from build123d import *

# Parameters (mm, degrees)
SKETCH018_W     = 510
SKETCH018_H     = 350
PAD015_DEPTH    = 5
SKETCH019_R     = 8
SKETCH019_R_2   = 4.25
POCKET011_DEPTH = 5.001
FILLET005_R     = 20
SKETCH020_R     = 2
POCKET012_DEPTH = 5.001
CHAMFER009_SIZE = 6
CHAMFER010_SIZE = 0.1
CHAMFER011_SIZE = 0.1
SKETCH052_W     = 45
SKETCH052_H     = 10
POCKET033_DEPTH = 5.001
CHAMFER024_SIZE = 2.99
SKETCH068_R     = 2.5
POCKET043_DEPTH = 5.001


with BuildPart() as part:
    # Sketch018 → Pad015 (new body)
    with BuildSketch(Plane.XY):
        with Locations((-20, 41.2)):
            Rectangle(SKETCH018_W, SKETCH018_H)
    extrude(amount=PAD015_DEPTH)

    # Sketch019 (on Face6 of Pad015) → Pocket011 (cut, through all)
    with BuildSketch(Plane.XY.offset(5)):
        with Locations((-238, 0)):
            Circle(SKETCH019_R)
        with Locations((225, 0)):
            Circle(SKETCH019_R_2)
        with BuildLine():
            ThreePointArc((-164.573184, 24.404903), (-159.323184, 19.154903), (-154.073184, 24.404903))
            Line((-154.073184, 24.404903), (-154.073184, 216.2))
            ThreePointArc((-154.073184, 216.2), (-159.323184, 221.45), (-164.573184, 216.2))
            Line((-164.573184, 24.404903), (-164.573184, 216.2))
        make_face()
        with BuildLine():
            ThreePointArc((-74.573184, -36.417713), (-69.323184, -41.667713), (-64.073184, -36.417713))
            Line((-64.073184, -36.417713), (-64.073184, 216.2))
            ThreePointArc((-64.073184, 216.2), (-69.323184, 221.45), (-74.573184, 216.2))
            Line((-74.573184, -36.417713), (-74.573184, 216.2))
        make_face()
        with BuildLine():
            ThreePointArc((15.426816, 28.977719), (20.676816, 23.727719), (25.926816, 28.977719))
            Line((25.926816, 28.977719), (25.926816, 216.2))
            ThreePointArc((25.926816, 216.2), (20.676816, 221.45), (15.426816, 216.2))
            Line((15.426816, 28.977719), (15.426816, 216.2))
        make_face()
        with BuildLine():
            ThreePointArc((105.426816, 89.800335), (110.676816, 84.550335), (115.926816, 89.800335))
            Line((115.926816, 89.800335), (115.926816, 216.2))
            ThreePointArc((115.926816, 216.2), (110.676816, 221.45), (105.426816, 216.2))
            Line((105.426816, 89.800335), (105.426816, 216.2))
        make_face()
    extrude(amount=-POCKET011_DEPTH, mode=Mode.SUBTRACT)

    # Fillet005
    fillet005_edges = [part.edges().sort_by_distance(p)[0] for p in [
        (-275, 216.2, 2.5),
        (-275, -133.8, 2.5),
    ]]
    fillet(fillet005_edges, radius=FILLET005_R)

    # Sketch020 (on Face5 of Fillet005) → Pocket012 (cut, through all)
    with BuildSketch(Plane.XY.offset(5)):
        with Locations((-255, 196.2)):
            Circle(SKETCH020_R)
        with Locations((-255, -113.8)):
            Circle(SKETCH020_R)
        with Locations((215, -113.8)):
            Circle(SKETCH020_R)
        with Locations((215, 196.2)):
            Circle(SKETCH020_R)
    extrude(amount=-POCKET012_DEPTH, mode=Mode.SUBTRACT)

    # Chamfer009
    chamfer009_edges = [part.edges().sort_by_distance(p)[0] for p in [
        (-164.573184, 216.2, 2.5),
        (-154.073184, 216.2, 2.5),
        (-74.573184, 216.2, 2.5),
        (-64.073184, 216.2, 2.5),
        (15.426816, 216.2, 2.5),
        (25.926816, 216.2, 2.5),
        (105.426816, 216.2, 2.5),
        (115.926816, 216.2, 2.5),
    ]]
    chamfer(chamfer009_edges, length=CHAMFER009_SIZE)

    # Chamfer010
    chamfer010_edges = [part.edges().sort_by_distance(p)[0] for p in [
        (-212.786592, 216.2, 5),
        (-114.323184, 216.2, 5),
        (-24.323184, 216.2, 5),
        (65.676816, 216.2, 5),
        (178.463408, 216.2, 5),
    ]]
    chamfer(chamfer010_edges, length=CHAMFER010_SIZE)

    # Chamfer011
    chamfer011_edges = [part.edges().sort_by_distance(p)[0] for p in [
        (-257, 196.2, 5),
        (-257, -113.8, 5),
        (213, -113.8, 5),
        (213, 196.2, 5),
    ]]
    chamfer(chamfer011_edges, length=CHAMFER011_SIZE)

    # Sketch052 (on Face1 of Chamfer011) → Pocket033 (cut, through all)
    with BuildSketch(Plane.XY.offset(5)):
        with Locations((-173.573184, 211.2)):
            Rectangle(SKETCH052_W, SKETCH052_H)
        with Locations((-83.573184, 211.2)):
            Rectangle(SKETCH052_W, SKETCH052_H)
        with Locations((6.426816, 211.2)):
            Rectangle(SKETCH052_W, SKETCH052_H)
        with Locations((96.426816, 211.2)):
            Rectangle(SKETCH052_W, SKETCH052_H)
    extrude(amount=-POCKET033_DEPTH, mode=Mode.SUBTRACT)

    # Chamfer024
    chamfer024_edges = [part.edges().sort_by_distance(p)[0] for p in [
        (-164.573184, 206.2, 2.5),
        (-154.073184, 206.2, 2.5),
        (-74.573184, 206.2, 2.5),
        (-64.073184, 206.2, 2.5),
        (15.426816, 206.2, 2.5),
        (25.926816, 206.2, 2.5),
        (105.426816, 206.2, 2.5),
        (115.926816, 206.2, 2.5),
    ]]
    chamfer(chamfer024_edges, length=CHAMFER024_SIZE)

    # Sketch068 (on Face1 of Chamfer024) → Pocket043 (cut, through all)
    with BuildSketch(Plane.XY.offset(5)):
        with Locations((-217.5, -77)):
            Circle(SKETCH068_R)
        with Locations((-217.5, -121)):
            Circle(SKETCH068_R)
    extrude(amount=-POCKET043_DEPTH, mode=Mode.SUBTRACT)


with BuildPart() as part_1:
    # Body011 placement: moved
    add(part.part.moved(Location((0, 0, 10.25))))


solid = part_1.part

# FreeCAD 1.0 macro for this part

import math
import FreeCAD as App
import Part
import Sketcher
Q = App.Units.Quantity


def edges_at(feature, points):
    """Names of the edges that pass closest to the given points."""
    edges = feature.Shape.Edges
    near = lambda p: min(range(len(edges)), key=lambda i: edges[i].distToShape(Part.Vertex(*p))[0])
    return sorted({f"Edge{near(p) + 1}" for p in points})

doc = App.newDocument("Part")
body = doc.addObject("PartDesign::Body", "Body")

sketch1 = body.newObject("Sketcher::SketchObject", "Sketch")
sketch1.AttachmentSupport = (doc.getObject("XY_Plane"), [""])
sketch1.MapMode = "FlatFace"
sketch1.addGeometry(Part.LineSegment(App.Vector(-275, 216, 0), App.Vector(-275, -134, 0)), False)
sketch1.addGeometry(Part.LineSegment(App.Vector(-275, -134, 0), App.Vector(235, -134, 0)), False)
sketch1.addGeometry(Part.LineSegment(App.Vector(235, -134, 0), App.Vector(235, 216, 0)), False)
sketch1.addGeometry(Part.LineSegment(App.Vector(235, 216, 0), App.Vector(-275, 216, 0)), False)
sketch1.addConstraint(Sketcher.Constraint("Coincident", 0, 2, 1, 1))
sketch1.addConstraint(Sketcher.Constraint("Coincident", 1, 2, 2, 1))
sketch1.addConstraint(Sketcher.Constraint("Coincident", 2, 2, 3, 1))
sketch1.addConstraint(Sketcher.Constraint("Coincident", 3, 2, 0, 1))
sketch1.addConstraint(Sketcher.Constraint("Vertical", 0))
sketch1.addConstraint(Sketcher.Constraint("Horizontal", 1))
sketch1.addConstraint(Sketcher.Constraint("Vertical", 2))
sketch1.addConstraint(Sketcher.Constraint("Horizontal", 3))
sketch1.addConstraint(Sketcher.Constraint("DistanceX", 1, 1, 1, 2, Q("510 mm")))
sketch1.addConstraint(Sketcher.Constraint("DistanceY", 0, 2, 0, 1, Q("350 mm")))
sketch1.addConstraint(Sketcher.Constraint("DistanceX", 0, 2, -1, 1, Q("275 mm")))
sketch1.addConstraint(Sketcher.Constraint("DistanceY", 0, 2, -1, 1, Q("133.8 mm")))
pad1 = body.newObject("PartDesign::Pad", "Pad")
pad1.Profile = sketch1
pad1.Length = 5

sketch2 = body.newObject("Sketcher::SketchObject", "Sketch001")
sketch2.AttachmentSupport = (doc.getObject("XY_Plane"), [""])
sketch2.MapMode = "FlatFace"
sketch2.AttachmentOffset = App.Placement(App.Vector(0, 0, 5), App.Rotation())
sketch2.addGeometry(Part.Circle(App.Vector(-238, 0, 0), App.Vector(0, 0, 1), 8), False)
sketch2.addGeometry(Part.Circle(App.Vector(225, 0, 0), App.Vector(0, 0, 1), 4.2), False)
sketch2.addGeometry(Part.ArcOfCircle(Part.Circle(App.Vector(-159.3, 24.4, 0), App.Vector(0, 0, 1), 5.2), math.radians(180), math.radians(360)), False)
sketch2.addGeometry(Part.LineSegment(App.Vector(-154.1, 24.4, 0), App.Vector(-154.1, 216.2, 0)), False)
sketch2.addGeometry(Part.ArcOfCircle(Part.Circle(App.Vector(-159.3, 216.2, 0), App.Vector(0, 0, 1), 5.2), math.radians(0), math.radians(180)), False)
sketch2.addGeometry(Part.LineSegment(App.Vector(-164.6, 216.2, 0), App.Vector(-164.6, 24.4, 0)), False)
sketch2.addGeometry(Part.ArcOfCircle(Part.Circle(App.Vector(-69.3, -36.4, 0), App.Vector(0, 0, 1), 5.2), math.radians(180), math.radians(360)), False)
sketch2.addGeometry(Part.LineSegment(App.Vector(-64.1, -36.4, 0), App.Vector(-64.1, 216.2, 0)), False)
sketch2.addGeometry(Part.ArcOfCircle(Part.Circle(App.Vector(-69.3, 216.2, 0), App.Vector(0, 0, 1), 5.2), math.radians(0), math.radians(180)), False)
sketch2.addGeometry(Part.LineSegment(App.Vector(-74.6, 216.2, 0), App.Vector(-74.6, -36.4, 0)), False)
sketch2.addGeometry(Part.ArcOfCircle(Part.Circle(App.Vector(20.7, 29, 0), App.Vector(0, 0, 1), 5.2), math.radians(180), math.radians(360)), False)
sketch2.addGeometry(Part.LineSegment(App.Vector(25.9, 29, 0), App.Vector(25.9, 216.2, 0)), False)
sketch2.addGeometry(Part.ArcOfCircle(Part.Circle(App.Vector(20.7, 216.2, 0), App.Vector(0, 0, 1), 5.2), math.radians(0), math.radians(180)), False)
sketch2.addGeometry(Part.LineSegment(App.Vector(15.4, 216.2, 0), App.Vector(15.4, 29, 0)), False)
sketch2.addGeometry(Part.ArcOfCircle(Part.Circle(App.Vector(110.7, 89.8, 0), App.Vector(0, 0, 1), 5.2), math.radians(180), math.radians(360)), False)
sketch2.addGeometry(Part.LineSegment(App.Vector(115.9, 89.8, 0), App.Vector(115.9, 216.2, 0)), False)
sketch2.addGeometry(Part.ArcOfCircle(Part.Circle(App.Vector(110.7, 216.2, 0), App.Vector(0, 0, 1), 5.2), math.radians(0), math.radians(180)), False)
sketch2.addGeometry(Part.LineSegment(App.Vector(105.4, 216.2, 0), App.Vector(105.4, 89.8, 0)), False)
sketch2.addConstraint(Sketcher.Constraint("Tangent", 2, 2, 3, 1))
sketch2.addConstraint(Sketcher.Constraint("Tangent", 3, 2, 4, 1))
sketch2.addConstraint(Sketcher.Constraint("Tangent", 4, 2, 5, 1))
sketch2.addConstraint(Sketcher.Constraint("Tangent", 5, 2, 2, 1))
sketch2.addConstraint(Sketcher.Constraint("Tangent", 6, 2, 7, 1))
sketch2.addConstraint(Sketcher.Constraint("Tangent", 7, 2, 8, 1))
sketch2.addConstraint(Sketcher.Constraint("Tangent", 8, 2, 9, 1))
sketch2.addConstraint(Sketcher.Constraint("Tangent", 9, 2, 6, 1))
sketch2.addConstraint(Sketcher.Constraint("Tangent", 10, 2, 11, 1))
sketch2.addConstraint(Sketcher.Constraint("Tangent", 11, 2, 12, 1))
sketch2.addConstraint(Sketcher.Constraint("Tangent", 12, 2, 13, 1))
sketch2.addConstraint(Sketcher.Constraint("Tangent", 13, 2, 10, 1))
sketch2.addConstraint(Sketcher.Constraint("Tangent", 14, 2, 15, 1))
sketch2.addConstraint(Sketcher.Constraint("Tangent", 15, 2, 16, 1))
sketch2.addConstraint(Sketcher.Constraint("Tangent", 16, 2, 17, 1))
sketch2.addConstraint(Sketcher.Constraint("Tangent", 17, 2, 14, 1))
sketch2.addConstraint(Sketcher.Constraint("Vertical", 3))
sketch2.addConstraint(Sketcher.Constraint("Vertical", 5))
sketch2.addConstraint(Sketcher.Constraint("Vertical", 7))
sketch2.addConstraint(Sketcher.Constraint("Vertical", 9))
sketch2.addConstraint(Sketcher.Constraint("Vertical", 11))
sketch2.addConstraint(Sketcher.Constraint("Vertical", 13))
sketch2.addConstraint(Sketcher.Constraint("Vertical", 15))
sketch2.addConstraint(Sketcher.Constraint("Vertical", 17))
sketch2.addConstraint(Sketcher.Constraint("Equal", 4, 6))
sketch2.addConstraint(Sketcher.Constraint("Equal", 8, 10))
sketch2.addConstraint(Sketcher.Constraint("Equal", 12, 14))
sketch2.addConstraint(Sketcher.Constraint("PointOnObject", 0, 3, -1))
sketch2.addConstraint(Sketcher.Constraint("PointOnObject", 1, 3, -1))
sketch2.addConstraint(Sketcher.Constraint("Horizontal", 4, 3, 8, 3))
sketch2.addConstraint(Sketcher.Constraint("Horizontal", 8, 3, 12, 3))
sketch2.addConstraint(Sketcher.Constraint("Horizontal", 12, 3, 16, 3))
sketch2.addConstraint(Sketcher.Constraint("Diameter", 0, Q("16 mm")))
sketch2.addConstraint(Sketcher.Constraint("Diameter", 1, Q("8.5 mm")))
sketch2.addConstraint(Sketcher.Constraint("Radius", 2, Q("5.25 mm")))
sketch2.addConstraint(Sketcher.Constraint("DistanceX", 0, 3, -1, 1, Q("238 mm")))
sketch2.addConstraint(Sketcher.Constraint("DistanceX", -1, 1, 1, 3, Q("225 mm")))
sketch2.addConstraint(Sketcher.Constraint("DistanceX", 2, 3, 6, 3, Q("90 mm")))
sketch2.addConstraint(Sketcher.Constraint("DistanceX", 6, 3, 10, 3, Q("90 mm")))
sketch2.addConstraint(Sketcher.Constraint("DistanceX", 10, 3, 14, 3, Q("90 mm")))
sketch2.addConstraint(Sketcher.Constraint("DistanceY", -1, 1, 4, 3, Q("216.2 mm")))
sketch2.addConstraint(Sketcher.Constraint("DistanceY", 11, 1, 11, 2, Q("187.222281 mm")))
sketch2.addConstraint(Sketcher.Constraint("DistanceY", 3, 1, 3, 2, Q("191.795097 mm")))
sketch2.addConstraint(Sketcher.Constraint("DistanceY", 7, 1, 7, 2, Q("252.617713 mm")))
sketch2.addConstraint(Sketcher.Constraint("DistanceY", 15, 1, 15, 2, Q("126.399665 mm")))
sketch2.addConstraint(Sketcher.Constraint("DistanceX", 2, 3, -1, 1, Q("159.323184 mm")))
pocket1 = body.newObject("PartDesign::Pocket", "Pocket")
pocket1.Profile = sketch2
pocket1.Type = "ThroughAll"
doc.recompute()

fillet = body.newObject("PartDesign::Fillet", "Fillet")
fillet.Base = (pocket1, edges_at(pocket1, [(-275, 216.2, 2.5), (-275, -133.8, 2.5)]))
fillet.Radius = 20

sketch3 = body.newObject("Sketcher::SketchObject", "Sketch002")
sketch3.AttachmentSupport = (doc.getObject("XY_Plane"), [""])
sketch3.MapMode = "FlatFace"
sketch3.AttachmentOffset = App.Placement(App.Vector(0, 0, 5), App.Rotation())
sketch3.addGeometry(Part.Circle(App.Vector(-255, 196.2, 0), App.Vector(0, 0, 1), 2), False)
sketch3.addGeometry(Part.Circle(App.Vector(-255, -113.8, 0), App.Vector(0, 0, 1), 2), False)
sketch3.addGeometry(Part.Circle(App.Vector(215, -113.8, 0), App.Vector(0, 0, 1), 2), False)
sketch3.addGeometry(Part.Circle(App.Vector(215, 196.2, 0), App.Vector(0, 0, 1), 2), False)
sketch3.addConstraint(Sketcher.Constraint("Equal", 0, 1))
sketch3.addConstraint(Sketcher.Constraint("Equal", 1, 2))
sketch3.addConstraint(Sketcher.Constraint("Equal", 2, 3))
sketch3.addConstraint(Sketcher.Constraint("Horizontal", 1, 3, 2, 3))
sketch3.addConstraint(Sketcher.Constraint("Horizontal", 0, 3, 3, 3))
sketch3.addConstraint(Sketcher.Constraint("Vertical", 0, 3, 1, 3))
sketch3.addConstraint(Sketcher.Constraint("Vertical", 2, 3, 3, 3))
sketch3.addConstraint(Sketcher.Constraint("Diameter", 0, Q("4 mm")))
sketch3.addConstraint(Sketcher.Constraint("DistanceX", 0, 3, -1, 1, Q("255 mm")))
sketch3.addConstraint(Sketcher.Constraint("DistanceX", -1, 1, 2, 3, Q("215 mm")))
sketch3.addConstraint(Sketcher.Constraint("DistanceY", 1, 3, 0, 3, Q("310 mm")))
sketch3.addConstraint(Sketcher.Constraint("DistanceY", -1, 1, 0, 3, Q("196.2 mm")))
pocket2 = body.newObject("PartDesign::Pocket", "Pocket001")
pocket2.Profile = sketch3
pocket2.Type = "ThroughAll"
doc.recompute()

chamfer = body.newObject("PartDesign::Chamfer", "Chamfer")
chamfer.Base = (pocket2, edges_at(pocket2, [
    (-164.573, 216.2, 2.5),
    (-154.073, 216.2, 2.5),
    (-74.573, 216.2, 2.5),
    (-64.073, 216.2, 2.5),
    (15.427, 216.2, 2.5),
    (25.927, 216.2, 2.5),
    (105.427, 216.2, 2.5),
    (115.927, 216.2, 2.5),
]))
chamfer.Size = 6
doc.recompute()

chamfer2 = body.newObject("PartDesign::Chamfer", "Chamfer001")
chamfer2.Base = (chamfer, edges_at(chamfer, [
    (-212.787, 216.2, 5),
    (-114.323, 216.2, 5),
    (-24.323, 216.2, 5),
    (65.677, 216.2, 5),
    (178.463, 216.2, 5),
]))
chamfer2.Size = 0.1
doc.recompute()

chamfer3 = body.newObject("PartDesign::Chamfer", "Chamfer002")
chamfer3.Base = (chamfer2, edges_at(chamfer2, [
    (-257, 196.2, 5),
    (-257, -113.8, 5),
    (213, -113.8, 5),
    (213, 196.2, 5),
]))
chamfer3.Size = 0.1

sketch4 = body.newObject("Sketcher::SketchObject", "Sketch003")
sketch4.AttachmentSupport = (doc.getObject("XY_Plane"), [""])
sketch4.MapMode = "FlatFace"
sketch4.AttachmentOffset = App.Placement(App.Vector(0, 0, 5), App.Rotation())
sketch4.addGeometry(Part.LineSegment(App.Vector(-196, 216, 0), App.Vector(-196, 206, 0)), False)
sketch4.addGeometry(Part.LineSegment(App.Vector(-196, 206, 0), App.Vector(-151, 206, 0)), False)
sketch4.addGeometry(Part.LineSegment(App.Vector(-151, 206, 0), App.Vector(-151, 216, 0)), False)
sketch4.addGeometry(Part.LineSegment(App.Vector(-151, 216, 0), App.Vector(-196, 216, 0)), False)
sketch4.addGeometry(Part.LineSegment(App.Vector(-106, 216, 0), App.Vector(-106, 206, 0)), False)
sketch4.addGeometry(Part.LineSegment(App.Vector(-106, 206, 0), App.Vector(-61, 206, 0)), False)
sketch4.addGeometry(Part.LineSegment(App.Vector(-61, 206, 0), App.Vector(-61, 216, 0)), False)
sketch4.addGeometry(Part.LineSegment(App.Vector(-61, 216, 0), App.Vector(-106, 216, 0)), False)
sketch4.addGeometry(Part.LineSegment(App.Vector(-16, 216, 0), App.Vector(-16, 206, 0)), False)
sketch4.addGeometry(Part.LineSegment(App.Vector(-16, 206, 0), App.Vector(29, 206, 0)), False)
sketch4.addGeometry(Part.LineSegment(App.Vector(29, 206, 0), App.Vector(29, 216, 0)), False)
sketch4.addGeometry(Part.LineSegment(App.Vector(29, 216, 0), App.Vector(-16, 216, 0)), False)
sketch4.addGeometry(Part.LineSegment(App.Vector(74, 216, 0), App.Vector(74, 206, 0)), False)
sketch4.addGeometry(Part.LineSegment(App.Vector(74, 206, 0), App.Vector(119, 206, 0)), False)
sketch4.addGeometry(Part.LineSegment(App.Vector(119, 206, 0), App.Vector(119, 216, 0)), False)
sketch4.addGeometry(Part.LineSegment(App.Vector(119, 216, 0), App.Vector(74, 216, 0)), False)
sketch4.addConstraint(Sketcher.Constraint("Coincident", 0, 2, 1, 1))
sketch4.addConstraint(Sketcher.Constraint("Coincident", 1, 2, 2, 1))
sketch4.addConstraint(Sketcher.Constraint("Coincident", 2, 2, 3, 1))
sketch4.addConstraint(Sketcher.Constraint("Coincident", 3, 2, 0, 1))
sketch4.addConstraint(Sketcher.Constraint("Coincident", 4, 2, 5, 1))
sketch4.addConstraint(Sketcher.Constraint("Coincident", 5, 2, 6, 1))
sketch4.addConstraint(Sketcher.Constraint("Coincident", 6, 2, 7, 1))
sketch4.addConstraint(Sketcher.Constraint("Coincident", 7, 2, 4, 1))
sketch4.addConstraint(Sketcher.Constraint("Coincident", 8, 2, 9, 1))
sketch4.addConstraint(Sketcher.Constraint("Coincident", 9, 2, 10, 1))
sketch4.addConstraint(Sketcher.Constraint("Coincident", 10, 2, 11, 1))
sketch4.addConstraint(Sketcher.Constraint("Coincident", 11, 2, 8, 1))
sketch4.addConstraint(Sketcher.Constraint("Coincident", 12, 2, 13, 1))
sketch4.addConstraint(Sketcher.Constraint("Coincident", 13, 2, 14, 1))
sketch4.addConstraint(Sketcher.Constraint("Coincident", 14, 2, 15, 1))
sketch4.addConstraint(Sketcher.Constraint("Coincident", 15, 2, 12, 1))
sketch4.addConstraint(Sketcher.Constraint("Vertical", 0))
sketch4.addConstraint(Sketcher.Constraint("Horizontal", 1))
sketch4.addConstraint(Sketcher.Constraint("Vertical", 2))
sketch4.addConstraint(Sketcher.Constraint("Horizontal", 3))
sketch4.addConstraint(Sketcher.Constraint("Vertical", 4))
sketch4.addConstraint(Sketcher.Constraint("Horizontal", 5))
sketch4.addConstraint(Sketcher.Constraint("Vertical", 6))
sketch4.addConstraint(Sketcher.Constraint("Horizontal", 7))
sketch4.addConstraint(Sketcher.Constraint("Vertical", 8))
sketch4.addConstraint(Sketcher.Constraint("Horizontal", 9))
sketch4.addConstraint(Sketcher.Constraint("Vertical", 10))
sketch4.addConstraint(Sketcher.Constraint("Horizontal", 11))
sketch4.addConstraint(Sketcher.Constraint("Vertical", 12))
sketch4.addConstraint(Sketcher.Constraint("Horizontal", 13))
sketch4.addConstraint(Sketcher.Constraint("Vertical", 14))
sketch4.addConstraint(Sketcher.Constraint("Horizontal", 15))
sketch4.addConstraint(Sketcher.Constraint("Horizontal", 1, 2, 4, 2))
sketch4.addConstraint(Sketcher.Constraint("Horizontal", 3, 2, 6, 2))
sketch4.addConstraint(Sketcher.Constraint("Horizontal", 5, 2, 8, 2))
sketch4.addConstraint(Sketcher.Constraint("Horizontal", 7, 2, 10, 2))
sketch4.addConstraint(Sketcher.Constraint("Horizontal", 9, 2, 12, 2))
sketch4.addConstraint(Sketcher.Constraint("Horizontal", 11, 2, 14, 2))
sketch4.addConstraint(Sketcher.Constraint("Equal", 3, 5))
sketch4.addConstraint(Sketcher.Constraint("Equal", 7, 9))
sketch4.addConstraint(Sketcher.Constraint("Equal", 11, 13))
sketch4.addConstraint(Sketcher.Constraint("DistanceX", 1, 1, 1, 2, Q("45 mm")))
sketch4.addConstraint(Sketcher.Constraint("DistanceY", 0, 2, 0, 1, Q("10 mm")))
sketch4.addConstraint(Sketcher.Constraint("DistanceX", 1, 2, 4, 2, Q("45 mm")))
sketch4.addConstraint(Sketcher.Constraint("DistanceX", 5, 2, 8, 2, Q("45 mm")))
sketch4.addConstraint(Sketcher.Constraint("DistanceX", 9, 2, 12, 2, Q("45 mm")))
sketch4.addConstraint(Sketcher.Constraint("DistanceY", -1, 1, 0, 2, Q("206.2 mm")))
sketch4.addConstraint(Sketcher.Constraint("DistanceX", 0, 2, -1, 1, Q("196.073184 mm")))
pocket3 = body.newObject("PartDesign::Pocket", "Pocket002")
pocket3.Profile = sketch4
pocket3.Type = "ThroughAll"
doc.recompute()

chamfer4 = body.newObject("PartDesign::Chamfer", "Chamfer003")
chamfer4.Base = (pocket3, edges_at(pocket3, [
    (-164.573, 206.2, 2.5),
    (-154.073, 206.2, 2.5),
    (-74.573, 206.2, 2.5),
    (-64.073, 206.2, 2.5),
    (15.427, 206.2, 2.5),
    (25.927, 206.2, 2.5),
    (105.427, 206.2, 2.5),
    (115.927, 206.2, 2.5),
]))
chamfer4.Size = 2.99

sketch5 = body.newObject("Sketcher::SketchObject", "Sketch004")
sketch5.AttachmentSupport = (doc.getObject("XY_Plane"), [""])
sketch5.MapMode = "FlatFace"
sketch5.AttachmentOffset = App.Placement(App.Vector(0, 0, 5), App.Rotation())
sketch5.addGeometry(Part.Circle(App.Vector(-217.5, -77, 0), App.Vector(0, 0, 1), 2.5), False)
sketch5.addGeometry(Part.Circle(App.Vector(-217.5, -121, 0), App.Vector(0, 0, 1), 2.5), False)
sketch5.addConstraint(Sketcher.Constraint("Equal", 0, 1))
sketch5.addConstraint(Sketcher.Constraint("Vertical", 0, 3, 1, 3))
sketch5.addConstraint(Sketcher.Constraint("Diameter", 0, Q("5 mm")))
sketch5.addConstraint(Sketcher.Constraint("DistanceY", 0, 3, -1, 1, Q("77 mm")))
sketch5.addConstraint(Sketcher.Constraint("DistanceY", 1, 3, -1, 1, Q("121 mm")))
sketch5.addConstraint(Sketcher.Constraint("DistanceX", 0, 3, -1, 1, Q("217.5 mm")))
pocket4 = body.newObject("PartDesign::Pocket", "Pocket003")
pocket4.Profile = sketch5
pocket4.Type = "ThroughAll"
body2 = doc.addObject("PartDesign::Body", "Body001")
doc.recompute()

body.Placement = App.Placement(App.Vector(0, 0, 10.25), App.Rotation(App.Vector(0, 0, 1), 0))
boolean = body2.newObject("PartDesign::Boolean", "Boolean")
boolean.Type = "Fuse"
boolean.addObjects([body])

doc.recompute()
